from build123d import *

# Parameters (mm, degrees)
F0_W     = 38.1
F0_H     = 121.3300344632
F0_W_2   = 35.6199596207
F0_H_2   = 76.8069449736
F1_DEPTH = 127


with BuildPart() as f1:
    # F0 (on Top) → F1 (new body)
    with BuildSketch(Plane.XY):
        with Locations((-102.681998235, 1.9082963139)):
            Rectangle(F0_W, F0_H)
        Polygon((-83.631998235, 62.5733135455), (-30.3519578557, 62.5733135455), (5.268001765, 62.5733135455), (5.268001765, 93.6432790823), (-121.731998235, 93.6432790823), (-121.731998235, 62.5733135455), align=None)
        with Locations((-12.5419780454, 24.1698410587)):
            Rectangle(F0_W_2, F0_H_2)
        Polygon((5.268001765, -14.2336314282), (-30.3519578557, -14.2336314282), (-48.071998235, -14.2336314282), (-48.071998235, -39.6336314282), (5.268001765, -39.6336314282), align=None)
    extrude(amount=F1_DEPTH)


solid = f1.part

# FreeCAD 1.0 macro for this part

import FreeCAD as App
import Part
import Sketcher
from FreeCAD import Vector
Q = App.Units.Quantity


def add_polygon(sketch, points):
    """Adds a closed chain of lines whose ends are joined by coincident constraints."""
    first, n = sketch.GeometryCount, len(points)
    for a, b in zip(points, points[1:] + points[:1]):
        sketch.addGeometry(Part.LineSegment(App.Vector(*a, 0), App.Vector(*b, 0)), False)
    for i in range(n):
        sketch.addConstraint(Sketcher.Constraint("Coincident", first + i, 2, first + (i + 1) % n, 1))

doc = App.newDocument("Part")
body = doc.addObject("PartDesign::Body", "Body")

# Sketch on XY plane
sketch1 = body.newObject("Sketcher::SketchObject", "Sketch")
sketch1.AttachmentSupport = (doc.getObject("XY_Plane"), [""])
sketch1.MapMode = "FlatFace"
add_polygon(sketch1, [(-121.731998, -58.756721), (-83.631998, -58.756721), (-83.631998, 62.573314), (-30.351958, 62.573314), (-30.351958, -14.233631), (-48.071998, -14.233631), (-48.071998, -39.633631), (5.268002, -39.633631), (5.268002, 93.643279), (-121.731998, 93.643279)])  # lines 0-9
sketch1.addConstraint(Sketcher.Constraint("Horizontal", 0))
sketch1.addConstraint(Sketcher.Constraint("Vertical", 1))
sketch1.addConstraint(Sketcher.Constraint("Horizontal", 2))
sketch1.addConstraint(Sketcher.Constraint("Vertical", 3))
sketch1.addConstraint(Sketcher.Constraint("Horizontal", 4))
sketch1.addConstraint(Sketcher.Constraint("Vertical", 5))
sketch1.addConstraint(Sketcher.Constraint("Horizontal", 6))
sketch1.addConstraint(Sketcher.Constraint("Vertical", 7))
sketch1.addConstraint(Sketcher.Constraint("Horizontal", 8))
sketch1.addConstraint(Sketcher.Constraint("Vertical", 9))
sketch1.addConstraint(Sketcher.Constraint("DistanceX", 8, 2, 8, 1, Q("5 in")))
sketch1.addConstraint(Sketcher.Constraint("DistanceY", 5, 2, 5, 1, Q("1 in")))
sketch1.addConstraint(Sketcher.Constraint("DistanceY", 9, 2, 9, 1, Q("6 in")))
sketch1.addConstraint(Sketcher.Constraint("DistanceX", 0, 1, 0, 2, Q("1.5 in")))
sketch1.addConstraint(Sketcher.Constraint("DistanceX", 6, 1, 6, 2, Q("2.1 in")))
sketch1.addConstraint(Sketcher.Constraint("DistanceX", 2, 1, 2, 2, Q("53.28004 mm")))
sketch1.addConstraint(Sketcher.Constraint("DistanceY", 7, 1, 7, 2, Q("133.276911 mm")))
sketch1.addConstraint(Sketcher.Constraint("DistanceX", 0, 2, -1, 1, Q("83.631998 mm")))
sketch1.addConstraint(Sketcher.Constraint("DistanceY", 1, 1, 1, 2, Q("121.330034 mm")))
sketch1.addConstraint(Sketcher.Constraint("DistanceY", 0, 2, -1, 1, Q("58.756721 mm")))
pad1 = body.newObject("PartDesign::Pad", "Pad")
pad1.Profile = sketch1
pad1.Length = Q("5 in")

doc.recompute()
